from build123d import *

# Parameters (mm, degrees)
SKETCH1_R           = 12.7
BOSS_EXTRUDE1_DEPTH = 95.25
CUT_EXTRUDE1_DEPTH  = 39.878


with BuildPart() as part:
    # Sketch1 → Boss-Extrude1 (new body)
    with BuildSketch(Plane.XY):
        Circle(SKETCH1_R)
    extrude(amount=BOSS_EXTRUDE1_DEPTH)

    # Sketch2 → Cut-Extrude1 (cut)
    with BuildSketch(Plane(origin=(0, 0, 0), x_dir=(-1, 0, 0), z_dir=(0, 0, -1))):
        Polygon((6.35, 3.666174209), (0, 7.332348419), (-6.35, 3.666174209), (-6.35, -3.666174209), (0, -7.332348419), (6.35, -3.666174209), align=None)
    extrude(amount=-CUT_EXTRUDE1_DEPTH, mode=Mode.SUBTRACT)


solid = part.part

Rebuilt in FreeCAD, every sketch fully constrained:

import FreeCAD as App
import Part
import Sketcher
from FreeCAD import Vector
Q = App.Units.Quantity

doc = App.newDocument("Part")
body = doc.addObject("PartDesign::Body", "Body")

sketch1 = doc.addObject("Sketcher::SketchObject", "Sketch")
body.addObject(sketch1)
sketch1.AttachmentSupport = (doc.XY_Plane, [""])
sketch1.MapMode = "FlatFace"
sketch1.addGeometry(Part.Circle(Vector(0, 0, 0), Vector(0, 0, 1), 13), False)
sketch1.addConstraint(Sketcher.Constraint("Coincident", 0, 3, -1, 1))
sketch1.addConstraint(Sketcher.Constraint("Diameter", 0, Q("1 in")))
pad1 = doc.addObject("PartDesign::Pad", "Pad")
body.addObject(pad1)
pad1.Profile = sketch1
pad1.Length = Q("3.75 in")

sketch2 = doc.addObject("Sketcher::SketchObject", "Sketch001")
body.addObject(sketch2)
sketch2.AttachmentSupport = (doc.XY_Plane, [""])
sketch2.MapMode = "FlatFace"
sketch2.addGeometry(Part.LineSegment(Vector(-6, 4, 0), Vector(0, 7, 0)), False)
sketch2.addGeometry(Part.LineSegment(Vector(0, 7, 0), Vector(6, 4, 0)), False)
sketch2.addGeometry(Part.LineSegment(Vector(6, 4, 0), Vector(6, -4, 0)), False)
sketch2.addGeometry(Part.LineSegment(Vector(6, -4, 0), Vector(0, -7, 0)), False)
sketch2.addGeometry(Part.LineSegment(Vector(0, -7, 0), Vector(-6, -4, 0)), False)
sketch2.addGeometry(Part.LineSegment(Vector(-6, -4, 0), Vector(-6, 4, 0)), False)
sketch2.addConstraint(Sketcher.Constraint("Coincident", 0, 2, 1, 1))
sketch2.addConstraint(Sketcher.Constraint("Coincident", 1, 2, 2, 1))
sketch2.addConstraint(Sketcher.Constraint("Coincident", 2, 2, 3, 1))
sketch2.addConstraint(Sketcher.Constraint("Coincident", 3, 2, 4, 1))
sketch2.addConstraint(Sketcher.Constraint("Coincident", 4, 2, 5, 1))
sketch2.addConstraint(Sketcher.Constraint("Coincident", 5, 2, 0, 1))
sketch2.addConstraint(Sketcher.Constraint("Vertical", 2))
sketch2.addConstraint(Sketcher.Constraint("Vertical", 5))
sketch2.addConstraint(Sketcher.Constraint("Symmetric", 0, 2, 3, 2, -1, 1))
sketch2.addConstraint(Sketcher.Constraint("Symmetric", 1, 2, 4, 2, -1, 1))
sketch2.addConstraint(Sketcher.Constraint("PointOnObject", 0, 2, -2))
sketch2.addConstraint(Sketcher.Constraint("Parallel", 0, 3))
sketch2.addConstraint(Sketcher.Constraint("Horizontal", 2, 2, 4, 2))
sketch2.addConstraint(Sketcher.Constraint("Angle", 0, Q("30 deg")))
sketch2.addConstraint(Sketcher.Constraint("DistanceX", 4, 2, 2, 2, Q("0.5 in")))
sketch2.addConstraint(Sketcher.Constraint("DistanceY", 2, 2, 2, 1, Q("7.332348 mm")))
pocket1 = doc.addObject("PartDesign::Pocket", "Pocket")
body.addObject(pocket1)
pocket1.Profile = sketch2
pocket1.Length = Q("1.57 in")
pocket1.Reversed = True

doc.recompute()
